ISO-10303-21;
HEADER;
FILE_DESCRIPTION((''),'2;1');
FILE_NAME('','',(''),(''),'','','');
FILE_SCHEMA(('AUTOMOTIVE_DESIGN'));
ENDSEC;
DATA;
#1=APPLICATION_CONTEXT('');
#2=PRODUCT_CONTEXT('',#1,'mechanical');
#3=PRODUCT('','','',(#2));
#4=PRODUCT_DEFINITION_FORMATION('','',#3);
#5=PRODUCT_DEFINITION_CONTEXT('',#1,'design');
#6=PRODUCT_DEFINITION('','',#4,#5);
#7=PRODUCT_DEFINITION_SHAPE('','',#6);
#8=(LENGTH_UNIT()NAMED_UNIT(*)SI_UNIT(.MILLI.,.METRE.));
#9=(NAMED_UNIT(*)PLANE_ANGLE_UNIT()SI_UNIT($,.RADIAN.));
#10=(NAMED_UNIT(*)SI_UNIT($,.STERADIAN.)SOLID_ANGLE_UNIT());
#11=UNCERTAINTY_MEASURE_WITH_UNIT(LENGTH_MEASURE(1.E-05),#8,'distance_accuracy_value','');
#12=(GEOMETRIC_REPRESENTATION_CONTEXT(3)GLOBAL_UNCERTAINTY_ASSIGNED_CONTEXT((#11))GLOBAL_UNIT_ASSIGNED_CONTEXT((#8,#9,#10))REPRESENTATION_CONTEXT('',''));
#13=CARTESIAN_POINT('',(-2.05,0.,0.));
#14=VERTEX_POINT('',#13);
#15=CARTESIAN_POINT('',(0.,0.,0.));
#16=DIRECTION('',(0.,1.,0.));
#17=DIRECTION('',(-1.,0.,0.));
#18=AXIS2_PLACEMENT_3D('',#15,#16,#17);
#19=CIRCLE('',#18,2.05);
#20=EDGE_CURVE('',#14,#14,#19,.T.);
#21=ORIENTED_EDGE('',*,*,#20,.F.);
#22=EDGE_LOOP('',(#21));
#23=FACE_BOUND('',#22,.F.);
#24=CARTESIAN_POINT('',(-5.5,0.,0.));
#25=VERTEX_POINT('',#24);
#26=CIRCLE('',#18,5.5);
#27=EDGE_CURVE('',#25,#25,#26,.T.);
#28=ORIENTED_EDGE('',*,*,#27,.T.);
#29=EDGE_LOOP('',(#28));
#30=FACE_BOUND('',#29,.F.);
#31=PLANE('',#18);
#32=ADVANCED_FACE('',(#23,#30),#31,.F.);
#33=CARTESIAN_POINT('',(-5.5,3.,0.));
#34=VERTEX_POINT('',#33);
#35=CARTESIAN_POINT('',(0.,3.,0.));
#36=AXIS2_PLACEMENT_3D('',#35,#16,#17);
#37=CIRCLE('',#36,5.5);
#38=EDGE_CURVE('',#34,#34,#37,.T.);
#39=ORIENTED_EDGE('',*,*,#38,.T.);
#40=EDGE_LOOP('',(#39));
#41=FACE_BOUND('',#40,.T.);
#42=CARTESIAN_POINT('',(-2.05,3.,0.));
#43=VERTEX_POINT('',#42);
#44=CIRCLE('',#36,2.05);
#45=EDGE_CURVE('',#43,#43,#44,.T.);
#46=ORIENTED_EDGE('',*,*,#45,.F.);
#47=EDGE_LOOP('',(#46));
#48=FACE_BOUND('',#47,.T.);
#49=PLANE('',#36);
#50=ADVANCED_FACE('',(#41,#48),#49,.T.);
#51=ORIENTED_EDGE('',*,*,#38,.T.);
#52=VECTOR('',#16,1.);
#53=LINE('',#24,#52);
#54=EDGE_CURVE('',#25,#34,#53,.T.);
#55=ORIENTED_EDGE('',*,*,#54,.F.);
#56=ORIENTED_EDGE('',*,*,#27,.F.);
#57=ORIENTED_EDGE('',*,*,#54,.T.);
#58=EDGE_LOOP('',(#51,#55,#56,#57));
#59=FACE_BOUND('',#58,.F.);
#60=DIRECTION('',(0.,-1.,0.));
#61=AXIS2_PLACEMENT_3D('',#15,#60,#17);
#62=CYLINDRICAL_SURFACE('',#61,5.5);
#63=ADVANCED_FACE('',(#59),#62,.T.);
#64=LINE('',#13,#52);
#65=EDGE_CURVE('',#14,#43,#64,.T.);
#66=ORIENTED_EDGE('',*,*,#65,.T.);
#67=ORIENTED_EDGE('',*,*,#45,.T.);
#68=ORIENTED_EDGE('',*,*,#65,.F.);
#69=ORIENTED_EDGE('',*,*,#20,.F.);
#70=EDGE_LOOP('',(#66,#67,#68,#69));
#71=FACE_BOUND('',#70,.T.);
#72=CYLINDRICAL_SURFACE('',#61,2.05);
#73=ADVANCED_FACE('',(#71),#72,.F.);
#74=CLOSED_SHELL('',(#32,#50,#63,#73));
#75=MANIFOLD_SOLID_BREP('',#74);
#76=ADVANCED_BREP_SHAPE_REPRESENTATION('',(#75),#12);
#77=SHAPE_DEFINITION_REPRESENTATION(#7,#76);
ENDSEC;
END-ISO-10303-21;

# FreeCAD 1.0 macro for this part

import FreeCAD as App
import Part
import Sketcher

V = App.Vector

doc = App.newDocument("Part")
params = doc.addObject("Spreadsheet::Sheet", "Params")
for row, (alias, value) in enumerate([
    ("sketch1_diameter", "11 mm"),
    ("sketch1_diameter2", "4.1 mm"),
    ("pad1_length", "3 mm"),
], start=1):
    params.set(f"A{row}", alias)
    params.set(f"B{row}", "=" + value)
    params.setAlias(f"B{row}", alias)

body = doc.addObject("PartDesign::Body", "Body")

sketch1 = body.newObject("Sketcher::SketchObject", "Sketch")
sketch1.AttachmentSupport = (doc.getObject("XZ_Plane"), [""])
sketch1.MapMode = "FlatFace"
sketch1.addGeometry([
    Part.Circle(V(0, 0, 0), V(0, 0, 1), 5.5),
    Part.Circle(V(0, 0, 0), V(0, 0, 1), 2.05),
], False)
sketch1.addConstraint([
    Sketcher.Constraint("Coincident", 0, 3, -1, 1),
    Sketcher.Constraint("Coincident", 1, 3, -1, 1),
    Sketcher.Constraint("Diameter", 0, 11.0),
    Sketcher.Constraint("Diameter", 1, 4.1),
])
sketch1.setExpression("Constraints[2]", "Params.sketch1_diameter")
sketch1.setExpression("Constraints[3]", "Params.sketch1_diameter2")
pad1 = body.newObject("PartDesign::Pad", "Pad")
pad1.Profile = sketch1
pad1.setExpression("Length", "Params.pad1_length")
pad1.Reversed = True

doc.recompute()
